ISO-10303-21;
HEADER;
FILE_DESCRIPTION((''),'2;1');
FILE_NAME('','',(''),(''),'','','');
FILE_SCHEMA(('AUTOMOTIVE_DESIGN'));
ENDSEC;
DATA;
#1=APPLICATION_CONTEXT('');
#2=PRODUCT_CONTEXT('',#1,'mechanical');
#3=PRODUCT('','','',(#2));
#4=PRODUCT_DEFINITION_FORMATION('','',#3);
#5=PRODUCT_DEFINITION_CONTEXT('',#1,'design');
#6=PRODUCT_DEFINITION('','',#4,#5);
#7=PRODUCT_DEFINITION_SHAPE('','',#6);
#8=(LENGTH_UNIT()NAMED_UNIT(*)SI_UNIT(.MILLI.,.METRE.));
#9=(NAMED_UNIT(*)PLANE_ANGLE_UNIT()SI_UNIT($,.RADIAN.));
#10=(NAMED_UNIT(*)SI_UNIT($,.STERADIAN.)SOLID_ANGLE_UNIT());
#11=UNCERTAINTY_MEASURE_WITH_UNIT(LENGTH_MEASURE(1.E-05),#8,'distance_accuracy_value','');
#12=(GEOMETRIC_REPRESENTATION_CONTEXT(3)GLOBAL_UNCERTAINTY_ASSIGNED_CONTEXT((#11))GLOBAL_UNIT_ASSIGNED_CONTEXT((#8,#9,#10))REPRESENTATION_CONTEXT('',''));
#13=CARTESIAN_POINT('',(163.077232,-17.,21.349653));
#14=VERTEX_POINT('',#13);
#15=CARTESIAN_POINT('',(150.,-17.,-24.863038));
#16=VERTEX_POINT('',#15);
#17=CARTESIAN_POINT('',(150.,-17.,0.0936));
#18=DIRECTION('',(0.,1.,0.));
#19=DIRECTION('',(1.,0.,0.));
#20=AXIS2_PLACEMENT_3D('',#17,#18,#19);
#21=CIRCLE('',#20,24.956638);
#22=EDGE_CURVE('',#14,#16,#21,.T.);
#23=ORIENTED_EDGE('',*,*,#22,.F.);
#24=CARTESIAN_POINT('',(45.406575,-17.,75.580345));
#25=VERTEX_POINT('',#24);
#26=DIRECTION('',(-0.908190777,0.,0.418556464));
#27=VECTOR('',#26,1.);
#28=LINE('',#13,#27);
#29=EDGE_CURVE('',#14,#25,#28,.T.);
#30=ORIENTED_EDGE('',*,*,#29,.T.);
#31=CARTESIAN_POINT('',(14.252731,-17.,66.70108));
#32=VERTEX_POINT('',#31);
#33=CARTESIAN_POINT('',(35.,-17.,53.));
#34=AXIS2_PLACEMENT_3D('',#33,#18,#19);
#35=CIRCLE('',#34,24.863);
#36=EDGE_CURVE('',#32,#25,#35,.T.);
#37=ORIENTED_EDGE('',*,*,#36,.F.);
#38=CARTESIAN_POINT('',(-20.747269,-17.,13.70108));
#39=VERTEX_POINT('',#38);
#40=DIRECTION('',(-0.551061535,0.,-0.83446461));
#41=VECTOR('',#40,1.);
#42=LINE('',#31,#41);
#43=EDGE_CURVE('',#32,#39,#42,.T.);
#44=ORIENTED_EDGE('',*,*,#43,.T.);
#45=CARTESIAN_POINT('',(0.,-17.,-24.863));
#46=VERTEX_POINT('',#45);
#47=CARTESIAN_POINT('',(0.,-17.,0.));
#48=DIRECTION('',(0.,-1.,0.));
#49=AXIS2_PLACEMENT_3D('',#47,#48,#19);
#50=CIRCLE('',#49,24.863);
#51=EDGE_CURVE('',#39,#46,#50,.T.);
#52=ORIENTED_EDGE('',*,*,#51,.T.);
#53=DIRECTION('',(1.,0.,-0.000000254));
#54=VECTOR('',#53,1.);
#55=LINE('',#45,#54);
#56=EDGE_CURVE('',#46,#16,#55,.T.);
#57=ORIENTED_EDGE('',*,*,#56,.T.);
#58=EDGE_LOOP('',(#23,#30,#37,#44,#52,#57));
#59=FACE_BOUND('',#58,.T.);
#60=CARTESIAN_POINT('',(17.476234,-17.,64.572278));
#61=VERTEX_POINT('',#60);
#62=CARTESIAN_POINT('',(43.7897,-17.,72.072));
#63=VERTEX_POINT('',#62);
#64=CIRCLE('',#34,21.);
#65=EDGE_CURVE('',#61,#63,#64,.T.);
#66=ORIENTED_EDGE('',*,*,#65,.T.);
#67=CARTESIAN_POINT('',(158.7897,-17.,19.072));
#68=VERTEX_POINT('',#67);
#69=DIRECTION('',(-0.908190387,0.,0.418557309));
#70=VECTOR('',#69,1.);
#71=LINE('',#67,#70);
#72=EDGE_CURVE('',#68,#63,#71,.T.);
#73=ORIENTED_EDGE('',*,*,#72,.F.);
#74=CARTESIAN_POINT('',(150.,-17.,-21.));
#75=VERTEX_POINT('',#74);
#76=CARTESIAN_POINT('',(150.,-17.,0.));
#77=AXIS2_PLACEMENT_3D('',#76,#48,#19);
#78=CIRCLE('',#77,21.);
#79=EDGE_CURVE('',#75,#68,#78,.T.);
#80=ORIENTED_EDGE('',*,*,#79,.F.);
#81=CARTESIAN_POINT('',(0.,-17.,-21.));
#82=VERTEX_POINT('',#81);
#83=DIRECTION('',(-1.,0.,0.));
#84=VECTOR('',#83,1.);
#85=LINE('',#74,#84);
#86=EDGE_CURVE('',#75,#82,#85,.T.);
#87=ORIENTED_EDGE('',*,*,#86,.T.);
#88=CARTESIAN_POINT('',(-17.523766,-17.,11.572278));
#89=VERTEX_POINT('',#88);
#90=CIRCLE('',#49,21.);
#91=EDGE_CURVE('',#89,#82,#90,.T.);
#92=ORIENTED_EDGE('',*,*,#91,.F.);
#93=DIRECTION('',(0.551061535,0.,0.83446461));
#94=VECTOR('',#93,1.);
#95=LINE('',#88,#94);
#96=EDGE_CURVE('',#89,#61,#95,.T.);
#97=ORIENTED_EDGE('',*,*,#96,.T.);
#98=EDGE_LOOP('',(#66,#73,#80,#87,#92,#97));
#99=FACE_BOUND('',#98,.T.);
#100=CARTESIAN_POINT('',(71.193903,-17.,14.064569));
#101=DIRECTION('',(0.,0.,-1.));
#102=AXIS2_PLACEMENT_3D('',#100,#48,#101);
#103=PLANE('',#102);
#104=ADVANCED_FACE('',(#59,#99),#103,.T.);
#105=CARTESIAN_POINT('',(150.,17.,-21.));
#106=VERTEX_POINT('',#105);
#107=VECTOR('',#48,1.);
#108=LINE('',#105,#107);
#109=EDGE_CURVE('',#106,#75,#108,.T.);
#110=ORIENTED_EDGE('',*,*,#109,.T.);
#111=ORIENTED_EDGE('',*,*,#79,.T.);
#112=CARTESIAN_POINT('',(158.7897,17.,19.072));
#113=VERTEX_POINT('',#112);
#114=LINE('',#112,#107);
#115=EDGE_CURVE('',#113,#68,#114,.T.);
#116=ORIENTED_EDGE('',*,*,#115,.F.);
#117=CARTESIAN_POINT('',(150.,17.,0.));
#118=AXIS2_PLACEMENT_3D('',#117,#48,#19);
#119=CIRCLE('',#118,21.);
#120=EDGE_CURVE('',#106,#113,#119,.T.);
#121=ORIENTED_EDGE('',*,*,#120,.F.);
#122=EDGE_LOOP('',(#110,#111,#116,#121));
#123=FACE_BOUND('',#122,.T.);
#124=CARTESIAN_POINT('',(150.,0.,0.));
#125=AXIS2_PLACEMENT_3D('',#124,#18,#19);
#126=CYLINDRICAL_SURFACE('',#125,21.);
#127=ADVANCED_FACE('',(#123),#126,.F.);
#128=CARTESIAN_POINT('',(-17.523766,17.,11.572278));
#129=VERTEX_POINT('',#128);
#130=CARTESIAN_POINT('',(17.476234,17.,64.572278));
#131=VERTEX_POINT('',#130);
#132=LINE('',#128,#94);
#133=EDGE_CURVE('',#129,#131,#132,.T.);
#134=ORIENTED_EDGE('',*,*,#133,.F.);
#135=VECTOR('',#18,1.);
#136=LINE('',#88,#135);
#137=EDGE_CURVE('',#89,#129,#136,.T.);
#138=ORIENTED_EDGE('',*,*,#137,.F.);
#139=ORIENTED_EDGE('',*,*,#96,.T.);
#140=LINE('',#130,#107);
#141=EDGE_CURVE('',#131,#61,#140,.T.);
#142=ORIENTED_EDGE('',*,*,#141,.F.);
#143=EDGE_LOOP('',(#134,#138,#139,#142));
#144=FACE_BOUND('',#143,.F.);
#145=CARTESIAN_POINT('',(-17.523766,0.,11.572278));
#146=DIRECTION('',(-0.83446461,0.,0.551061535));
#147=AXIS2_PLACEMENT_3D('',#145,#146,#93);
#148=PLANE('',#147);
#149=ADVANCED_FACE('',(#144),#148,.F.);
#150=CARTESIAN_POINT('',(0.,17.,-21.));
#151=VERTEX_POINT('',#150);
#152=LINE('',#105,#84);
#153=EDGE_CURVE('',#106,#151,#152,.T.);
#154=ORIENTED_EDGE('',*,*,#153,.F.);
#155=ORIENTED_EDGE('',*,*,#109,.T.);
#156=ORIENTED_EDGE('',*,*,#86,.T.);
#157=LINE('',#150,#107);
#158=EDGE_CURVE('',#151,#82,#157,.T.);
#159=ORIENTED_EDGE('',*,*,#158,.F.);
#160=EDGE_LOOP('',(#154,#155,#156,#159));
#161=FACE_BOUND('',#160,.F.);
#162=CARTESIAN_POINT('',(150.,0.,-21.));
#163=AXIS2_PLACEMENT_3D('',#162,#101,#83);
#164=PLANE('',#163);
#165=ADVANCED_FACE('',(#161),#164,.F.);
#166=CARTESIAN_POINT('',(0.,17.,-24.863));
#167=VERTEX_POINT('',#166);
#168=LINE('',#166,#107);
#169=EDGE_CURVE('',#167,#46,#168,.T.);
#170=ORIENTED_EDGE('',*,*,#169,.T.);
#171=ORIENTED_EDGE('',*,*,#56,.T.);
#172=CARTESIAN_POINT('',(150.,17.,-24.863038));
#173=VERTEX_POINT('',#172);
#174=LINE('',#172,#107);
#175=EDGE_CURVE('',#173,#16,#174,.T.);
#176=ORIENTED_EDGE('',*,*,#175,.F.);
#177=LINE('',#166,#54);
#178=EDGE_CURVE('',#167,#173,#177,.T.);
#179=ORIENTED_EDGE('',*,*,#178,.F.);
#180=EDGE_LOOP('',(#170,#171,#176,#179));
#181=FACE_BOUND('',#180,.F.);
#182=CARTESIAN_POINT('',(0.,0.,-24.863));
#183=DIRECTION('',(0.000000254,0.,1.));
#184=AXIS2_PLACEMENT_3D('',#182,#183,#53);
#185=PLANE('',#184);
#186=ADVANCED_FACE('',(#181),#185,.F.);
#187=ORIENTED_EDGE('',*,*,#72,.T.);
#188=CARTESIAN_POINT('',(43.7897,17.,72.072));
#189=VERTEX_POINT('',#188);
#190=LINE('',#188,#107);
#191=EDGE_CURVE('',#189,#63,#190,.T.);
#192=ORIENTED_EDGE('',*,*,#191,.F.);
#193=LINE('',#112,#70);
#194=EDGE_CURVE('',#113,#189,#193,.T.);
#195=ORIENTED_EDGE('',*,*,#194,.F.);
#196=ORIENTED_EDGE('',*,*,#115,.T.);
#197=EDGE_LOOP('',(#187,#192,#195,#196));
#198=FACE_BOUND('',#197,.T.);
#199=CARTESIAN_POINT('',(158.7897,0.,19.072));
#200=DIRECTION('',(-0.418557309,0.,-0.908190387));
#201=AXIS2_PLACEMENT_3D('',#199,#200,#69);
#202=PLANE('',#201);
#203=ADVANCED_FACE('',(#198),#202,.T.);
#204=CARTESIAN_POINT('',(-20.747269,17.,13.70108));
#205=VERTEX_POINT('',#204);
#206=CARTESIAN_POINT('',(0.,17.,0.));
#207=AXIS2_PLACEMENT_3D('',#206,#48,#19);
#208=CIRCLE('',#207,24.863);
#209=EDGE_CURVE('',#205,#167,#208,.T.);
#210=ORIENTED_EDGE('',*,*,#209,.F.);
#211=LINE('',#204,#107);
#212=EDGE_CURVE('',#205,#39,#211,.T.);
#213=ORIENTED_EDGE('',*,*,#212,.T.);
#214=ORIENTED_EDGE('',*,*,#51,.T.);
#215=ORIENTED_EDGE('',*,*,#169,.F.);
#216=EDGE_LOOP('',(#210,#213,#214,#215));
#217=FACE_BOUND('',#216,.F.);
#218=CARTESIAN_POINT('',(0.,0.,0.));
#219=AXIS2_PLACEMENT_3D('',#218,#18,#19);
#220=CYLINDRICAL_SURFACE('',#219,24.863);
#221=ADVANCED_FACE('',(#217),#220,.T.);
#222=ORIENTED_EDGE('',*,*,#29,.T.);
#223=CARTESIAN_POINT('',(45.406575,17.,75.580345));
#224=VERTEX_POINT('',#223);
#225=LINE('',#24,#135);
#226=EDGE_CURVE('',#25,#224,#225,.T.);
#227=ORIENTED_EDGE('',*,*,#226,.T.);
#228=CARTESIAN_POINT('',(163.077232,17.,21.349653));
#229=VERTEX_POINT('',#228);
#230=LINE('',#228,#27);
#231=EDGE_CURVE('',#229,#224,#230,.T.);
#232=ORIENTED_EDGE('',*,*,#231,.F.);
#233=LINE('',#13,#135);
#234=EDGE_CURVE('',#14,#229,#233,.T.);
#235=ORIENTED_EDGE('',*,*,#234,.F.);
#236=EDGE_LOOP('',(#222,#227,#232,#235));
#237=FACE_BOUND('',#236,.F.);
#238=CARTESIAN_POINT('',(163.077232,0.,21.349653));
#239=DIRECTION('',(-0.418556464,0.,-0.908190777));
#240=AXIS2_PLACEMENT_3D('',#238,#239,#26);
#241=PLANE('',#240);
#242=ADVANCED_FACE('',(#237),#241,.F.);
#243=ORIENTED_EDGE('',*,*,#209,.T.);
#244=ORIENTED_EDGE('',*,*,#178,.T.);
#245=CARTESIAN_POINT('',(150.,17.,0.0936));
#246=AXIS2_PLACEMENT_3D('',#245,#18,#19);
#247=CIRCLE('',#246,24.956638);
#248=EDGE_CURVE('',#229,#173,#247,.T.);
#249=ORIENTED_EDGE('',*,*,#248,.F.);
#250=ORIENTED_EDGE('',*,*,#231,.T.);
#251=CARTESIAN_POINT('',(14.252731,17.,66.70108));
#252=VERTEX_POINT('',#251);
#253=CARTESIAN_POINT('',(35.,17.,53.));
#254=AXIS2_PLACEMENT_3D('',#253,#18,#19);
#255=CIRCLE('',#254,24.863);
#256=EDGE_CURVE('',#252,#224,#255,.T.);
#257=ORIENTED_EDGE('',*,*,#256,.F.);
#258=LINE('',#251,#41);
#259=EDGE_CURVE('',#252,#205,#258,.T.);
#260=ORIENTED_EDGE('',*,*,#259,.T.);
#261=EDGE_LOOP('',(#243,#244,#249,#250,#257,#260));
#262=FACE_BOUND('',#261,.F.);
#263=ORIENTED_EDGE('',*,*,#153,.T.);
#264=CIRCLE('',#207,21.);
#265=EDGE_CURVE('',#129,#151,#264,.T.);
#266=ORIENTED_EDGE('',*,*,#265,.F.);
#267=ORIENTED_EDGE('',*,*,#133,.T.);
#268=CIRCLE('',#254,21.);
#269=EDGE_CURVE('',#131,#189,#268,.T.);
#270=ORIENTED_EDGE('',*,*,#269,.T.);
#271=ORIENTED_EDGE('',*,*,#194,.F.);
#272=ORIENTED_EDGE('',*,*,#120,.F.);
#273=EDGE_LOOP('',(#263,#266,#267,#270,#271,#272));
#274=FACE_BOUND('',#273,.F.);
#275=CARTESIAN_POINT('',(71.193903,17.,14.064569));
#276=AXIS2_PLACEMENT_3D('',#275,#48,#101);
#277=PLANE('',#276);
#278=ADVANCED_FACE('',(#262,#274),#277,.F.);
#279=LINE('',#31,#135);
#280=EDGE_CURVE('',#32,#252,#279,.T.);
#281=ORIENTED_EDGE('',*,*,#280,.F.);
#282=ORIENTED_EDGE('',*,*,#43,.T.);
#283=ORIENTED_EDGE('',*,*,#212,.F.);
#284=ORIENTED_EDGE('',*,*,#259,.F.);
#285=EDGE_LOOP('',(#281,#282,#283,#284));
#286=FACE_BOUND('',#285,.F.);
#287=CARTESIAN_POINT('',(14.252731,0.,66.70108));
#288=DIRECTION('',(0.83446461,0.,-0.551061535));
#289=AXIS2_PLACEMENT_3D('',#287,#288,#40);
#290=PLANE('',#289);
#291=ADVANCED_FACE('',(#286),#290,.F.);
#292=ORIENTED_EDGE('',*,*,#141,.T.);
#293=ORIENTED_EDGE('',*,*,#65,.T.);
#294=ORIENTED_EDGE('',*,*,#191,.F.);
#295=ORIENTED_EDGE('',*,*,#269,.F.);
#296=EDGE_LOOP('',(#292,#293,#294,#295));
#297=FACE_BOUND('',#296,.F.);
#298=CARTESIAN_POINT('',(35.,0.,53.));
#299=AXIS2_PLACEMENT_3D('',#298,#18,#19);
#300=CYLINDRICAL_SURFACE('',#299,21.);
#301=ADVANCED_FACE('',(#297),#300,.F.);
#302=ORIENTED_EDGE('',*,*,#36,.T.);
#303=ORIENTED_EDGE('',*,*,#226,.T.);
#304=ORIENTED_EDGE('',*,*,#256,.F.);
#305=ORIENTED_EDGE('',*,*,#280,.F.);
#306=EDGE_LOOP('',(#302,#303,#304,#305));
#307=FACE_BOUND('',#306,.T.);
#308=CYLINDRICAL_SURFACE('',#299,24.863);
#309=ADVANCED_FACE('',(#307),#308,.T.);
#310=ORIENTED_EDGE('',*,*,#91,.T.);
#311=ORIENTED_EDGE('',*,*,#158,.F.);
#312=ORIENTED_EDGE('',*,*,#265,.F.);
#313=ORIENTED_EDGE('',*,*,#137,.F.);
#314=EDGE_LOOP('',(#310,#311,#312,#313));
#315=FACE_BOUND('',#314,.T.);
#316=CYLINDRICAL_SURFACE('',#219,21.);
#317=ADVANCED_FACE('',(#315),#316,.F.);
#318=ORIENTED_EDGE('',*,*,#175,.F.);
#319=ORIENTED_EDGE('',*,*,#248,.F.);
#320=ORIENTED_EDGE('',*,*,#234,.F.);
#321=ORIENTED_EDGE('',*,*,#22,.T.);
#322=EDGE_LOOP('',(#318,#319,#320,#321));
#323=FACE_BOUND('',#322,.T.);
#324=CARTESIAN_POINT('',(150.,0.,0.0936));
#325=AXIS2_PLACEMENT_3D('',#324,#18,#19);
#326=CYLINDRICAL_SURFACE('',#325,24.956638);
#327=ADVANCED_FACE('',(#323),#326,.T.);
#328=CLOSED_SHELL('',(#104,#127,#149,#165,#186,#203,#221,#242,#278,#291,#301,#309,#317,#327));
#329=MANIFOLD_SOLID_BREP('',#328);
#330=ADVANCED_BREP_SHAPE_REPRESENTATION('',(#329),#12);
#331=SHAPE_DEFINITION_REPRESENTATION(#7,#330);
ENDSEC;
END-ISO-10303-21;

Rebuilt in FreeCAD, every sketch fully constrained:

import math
import FreeCAD as App
import Part
import Sketcher
Q = App.Units.Quantity

doc = App.newDocument("Part")
params = doc.addObject("Spreadsheet::Sheet", "Params")
for row, (alias, value) in enumerate([
    ("sketch1_radius", "21 mm"),
    ("sketch1_width", "150 mm"),
    ("pad1_length", "34 mm"),
], start=1):
    params.set(f"A{row}", alias)
    params.set(f"B{row}", "=" + value)
    params.setAlias(f"B{row}", alias)

body = doc.addObject("PartDesign::Body", "Body")

# Sketch on XZ plane
sketch1 = doc.addObject("Sketcher::SketchObject", "Sketch")
body.addObject(sketch1)
sketch1.AttachmentSupport = (doc.XZ_Plane, [""])
sketch1.MapMode = "FlatFace"
sketch1.addGeometry(Part.ArcOfCircle(Part.Circle(App.Vector(35, 53, 0), App.Vector(0, 0, 1), 25), math.radians(65), math.radians(147)), False)
sketch1.addGeometry(Part.LineSegment(App.Vector(14, 67, 0), App.Vector(-21, 14, 0)), False)
sketch1.addGeometry(Part.ArcOfCircle(Part.Circle(App.Vector(0, 0, 0), App.Vector(0, 0, 1), 25), math.radians(147), math.radians(270)), False)
sketch1.addGeometry(Part.LineSegment(App.Vector(0, -25, 0), App.Vector(150, -25, 0)), False)
sketch1.addGeometry(Part.ArcOfCircle(Part.Circle(App.Vector(150, 0, 0), App.Vector(0, 0, 1), 25), math.radians(-90), math.radians(58)), False)
sketch1.addGeometry(Part.LineSegment(App.Vector(163, 21, 0), App.Vector(45, 76, 0)), False)
sketch1.addGeometry(Part.ArcOfCircle(Part.Circle(App.Vector(150, 0, 0), App.Vector(0, 0, 1), 21), math.radians(-90), math.radians(65)), False)
sketch1.addGeometry(Part.LineSegment(App.Vector(150, -21, 0), App.Vector(0, -21, 0)), False)
sketch1.addGeometry(Part.ArcOfCircle(Part.Circle(App.Vector(0, 0, 0), App.Vector(0, 0, 1), 21), math.radians(147), math.radians(270)), False)
sketch1.addGeometry(Part.LineSegment(App.Vector(-18, 12, 0), App.Vector(17, 65, 0)), False)
sketch1.addGeometry(Part.ArcOfCircle(Part.Circle(App.Vector(35, 53, 0), App.Vector(0, 0, 1), 21), math.radians(65), math.radians(147)), False)
sketch1.addGeometry(Part.LineSegment(App.Vector(44, 72, 0), App.Vector(159, 19, 0)), False)
sketch1.addConstraint(Sketcher.Constraint("Tangent", 0, 2, 1, 1))
sketch1.addConstraint(Sketcher.Constraint("Tangent", 1, 2, 2, 1))
sketch1.addConstraint(Sketcher.Constraint("Tangent", 2, 2, 3, 1))
sketch1.addConstraint(Sketcher.Constraint("Tangent", 3, 2, 4, 1))
sketch1.addConstraint(Sketcher.Constraint("Coincident", 4, 2, 5, 1))
sketch1.addConstraint(Sketcher.Constraint("Tangent", 5, 2, 0, 1))
sketch1.addConstraint(Sketcher.Constraint("Tangent", 6, 1, 7, 1))
sketch1.addConstraint(Sketcher.Constraint("Tangent", 7, 2, 8, 2))
sketch1.addConstraint(Sketcher.Constraint("Tangent", 8, 1, 9, 1))
sketch1.addConstraint(Sketcher.Constraint("Tangent", 9, 2, 10, 2))
sketch1.addConstraint(Sketcher.Constraint("Tangent", 10, 1, 11, 1))
sketch1.addConstraint(Sketcher.Constraint("Tangent", 11, 2, 6, 2))
sketch1.addConstraint(Sketcher.Constraint("Horizontal", 3))
sketch1.addConstraint(Sketcher.Constraint("Horizontal", 7))
sketch1.addConstraint(Sketcher.Constraint("Coincident", 2, 3, -1, 1))
sketch1.addConstraint(Sketcher.Constraint("Coincident", 8, 3, -1, 1))
sketch1.addConstraint(Sketcher.Constraint("Coincident", 10, 3, 0, 3))
sketch1.addConstraint(Sketcher.Constraint("Equal", 0, 2))
sketch1.addConstraint(Sketcher.Constraint("Equal", 6, 8))
sketch1.addConstraint(Sketcher.Constraint("Equal", 8, 10))
sketch1.addConstraint(Sketcher.Constraint("Parallel", 5, 11))
sketch1.addConstraint(Sketcher.Constraint("Vertical", 4, 3, 6, 3))
sketch1.addConstraint(Sketcher.Constraint("Radius", 6, Q("21 mm")))
sketch1.addConstraint(Sketcher.Constraint("DistanceX", 3, 1, 3, 2, Q("150 mm")))
sketch1.addConstraint(Sketcher.Constraint("DistanceX", -1, 1, 0, 3, Q("35 mm")))
sketch1.addConstraint(Sketcher.Constraint("DistanceY", -1, 1, 0, 3, Q("53 mm")))
sketch1.addConstraint(Sketcher.Constraint("Radius", 0, Q("24.863 mm")))
sketch1.addConstraint(Sketcher.Constraint("Radius", 4, Q("24.9566 mm")))
sketch1.setExpression("Constraints[22]", "Params.sketch1_radius")
sketch1.setExpression("Constraints[23]", "Params.sketch1_width")
pad1 = doc.addObject("PartDesign::Pad", "Pad")
body.addObject(pad1)
pad1.Profile = sketch1
pad1.setExpression("Length", "Params.pad1_length")
pad1.Midplane = True

doc.recompute()
